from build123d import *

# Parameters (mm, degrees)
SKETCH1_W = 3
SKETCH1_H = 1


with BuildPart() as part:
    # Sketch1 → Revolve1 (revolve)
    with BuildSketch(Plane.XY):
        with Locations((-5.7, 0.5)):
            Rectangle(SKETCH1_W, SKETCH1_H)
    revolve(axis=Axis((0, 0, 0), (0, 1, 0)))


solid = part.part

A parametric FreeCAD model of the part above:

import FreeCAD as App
import Part
import Sketcher

doc = App.newDocument("Part")
body = doc.addObject("PartDesign::Body", "Body")

# Sketch on XY plane
sketch1 = body.newObject("Sketcher::SketchObject", "Sketch")
sketch1.AttachmentSupport = (doc.getObject("XY_Plane"), [""])
sketch1.MapMode = "FlatFace"
sketch1.addGeometry([
    Part.LineSegment(App.Vector(-7.2, 1, 0), App.Vector(-7.2, 0, 0)),
    Part.LineSegment(App.Vector(-7.2, 0, 0), App.Vector(-4.2, 0, 0)),
    Part.LineSegment(App.Vector(-4.2, 0, 0), App.Vector(-4.2, 1, 0)),
    Part.LineSegment(App.Vector(-4.2, 1, 0), App.Vector(-7.2, 1, 0)),
], False)
sketch1.addConstraint([
    Sketcher.Constraint("Coincident", 0, 2, 1, 1),
    Sketcher.Constraint("Coincident", 1, 2, 2, 1),
    Sketcher.Constraint("Coincident", 2, 2, 3, 1),
    Sketcher.Constraint("Coincident", 3, 2, 0, 1),
    Sketcher.Constraint("Vertical", 0),
    Sketcher.Constraint("Horizontal", 1),
    Sketcher.Constraint("Vertical", 2),
    Sketcher.Constraint("Horizontal", 3),
    Sketcher.Constraint("PointOnObject", 0, 2, -1),
    Sketcher.Constraint("DistanceX", 1, 1, 1, 2, 3.0),
    Sketcher.Constraint("DistanceY", 0, 2, 0, 1, 1.0),
    Sketcher.Constraint("DistanceX", 0, 2, -1, 1, 7.2),
])
revolution = body.newObject("PartDesign::Revolution", "Revolution")
revolution.Profile = sketch1
revolution.ReferenceAxis = (sketch1, ["V_Axis"])
revolution.Angle = 360

doc.recompute()
